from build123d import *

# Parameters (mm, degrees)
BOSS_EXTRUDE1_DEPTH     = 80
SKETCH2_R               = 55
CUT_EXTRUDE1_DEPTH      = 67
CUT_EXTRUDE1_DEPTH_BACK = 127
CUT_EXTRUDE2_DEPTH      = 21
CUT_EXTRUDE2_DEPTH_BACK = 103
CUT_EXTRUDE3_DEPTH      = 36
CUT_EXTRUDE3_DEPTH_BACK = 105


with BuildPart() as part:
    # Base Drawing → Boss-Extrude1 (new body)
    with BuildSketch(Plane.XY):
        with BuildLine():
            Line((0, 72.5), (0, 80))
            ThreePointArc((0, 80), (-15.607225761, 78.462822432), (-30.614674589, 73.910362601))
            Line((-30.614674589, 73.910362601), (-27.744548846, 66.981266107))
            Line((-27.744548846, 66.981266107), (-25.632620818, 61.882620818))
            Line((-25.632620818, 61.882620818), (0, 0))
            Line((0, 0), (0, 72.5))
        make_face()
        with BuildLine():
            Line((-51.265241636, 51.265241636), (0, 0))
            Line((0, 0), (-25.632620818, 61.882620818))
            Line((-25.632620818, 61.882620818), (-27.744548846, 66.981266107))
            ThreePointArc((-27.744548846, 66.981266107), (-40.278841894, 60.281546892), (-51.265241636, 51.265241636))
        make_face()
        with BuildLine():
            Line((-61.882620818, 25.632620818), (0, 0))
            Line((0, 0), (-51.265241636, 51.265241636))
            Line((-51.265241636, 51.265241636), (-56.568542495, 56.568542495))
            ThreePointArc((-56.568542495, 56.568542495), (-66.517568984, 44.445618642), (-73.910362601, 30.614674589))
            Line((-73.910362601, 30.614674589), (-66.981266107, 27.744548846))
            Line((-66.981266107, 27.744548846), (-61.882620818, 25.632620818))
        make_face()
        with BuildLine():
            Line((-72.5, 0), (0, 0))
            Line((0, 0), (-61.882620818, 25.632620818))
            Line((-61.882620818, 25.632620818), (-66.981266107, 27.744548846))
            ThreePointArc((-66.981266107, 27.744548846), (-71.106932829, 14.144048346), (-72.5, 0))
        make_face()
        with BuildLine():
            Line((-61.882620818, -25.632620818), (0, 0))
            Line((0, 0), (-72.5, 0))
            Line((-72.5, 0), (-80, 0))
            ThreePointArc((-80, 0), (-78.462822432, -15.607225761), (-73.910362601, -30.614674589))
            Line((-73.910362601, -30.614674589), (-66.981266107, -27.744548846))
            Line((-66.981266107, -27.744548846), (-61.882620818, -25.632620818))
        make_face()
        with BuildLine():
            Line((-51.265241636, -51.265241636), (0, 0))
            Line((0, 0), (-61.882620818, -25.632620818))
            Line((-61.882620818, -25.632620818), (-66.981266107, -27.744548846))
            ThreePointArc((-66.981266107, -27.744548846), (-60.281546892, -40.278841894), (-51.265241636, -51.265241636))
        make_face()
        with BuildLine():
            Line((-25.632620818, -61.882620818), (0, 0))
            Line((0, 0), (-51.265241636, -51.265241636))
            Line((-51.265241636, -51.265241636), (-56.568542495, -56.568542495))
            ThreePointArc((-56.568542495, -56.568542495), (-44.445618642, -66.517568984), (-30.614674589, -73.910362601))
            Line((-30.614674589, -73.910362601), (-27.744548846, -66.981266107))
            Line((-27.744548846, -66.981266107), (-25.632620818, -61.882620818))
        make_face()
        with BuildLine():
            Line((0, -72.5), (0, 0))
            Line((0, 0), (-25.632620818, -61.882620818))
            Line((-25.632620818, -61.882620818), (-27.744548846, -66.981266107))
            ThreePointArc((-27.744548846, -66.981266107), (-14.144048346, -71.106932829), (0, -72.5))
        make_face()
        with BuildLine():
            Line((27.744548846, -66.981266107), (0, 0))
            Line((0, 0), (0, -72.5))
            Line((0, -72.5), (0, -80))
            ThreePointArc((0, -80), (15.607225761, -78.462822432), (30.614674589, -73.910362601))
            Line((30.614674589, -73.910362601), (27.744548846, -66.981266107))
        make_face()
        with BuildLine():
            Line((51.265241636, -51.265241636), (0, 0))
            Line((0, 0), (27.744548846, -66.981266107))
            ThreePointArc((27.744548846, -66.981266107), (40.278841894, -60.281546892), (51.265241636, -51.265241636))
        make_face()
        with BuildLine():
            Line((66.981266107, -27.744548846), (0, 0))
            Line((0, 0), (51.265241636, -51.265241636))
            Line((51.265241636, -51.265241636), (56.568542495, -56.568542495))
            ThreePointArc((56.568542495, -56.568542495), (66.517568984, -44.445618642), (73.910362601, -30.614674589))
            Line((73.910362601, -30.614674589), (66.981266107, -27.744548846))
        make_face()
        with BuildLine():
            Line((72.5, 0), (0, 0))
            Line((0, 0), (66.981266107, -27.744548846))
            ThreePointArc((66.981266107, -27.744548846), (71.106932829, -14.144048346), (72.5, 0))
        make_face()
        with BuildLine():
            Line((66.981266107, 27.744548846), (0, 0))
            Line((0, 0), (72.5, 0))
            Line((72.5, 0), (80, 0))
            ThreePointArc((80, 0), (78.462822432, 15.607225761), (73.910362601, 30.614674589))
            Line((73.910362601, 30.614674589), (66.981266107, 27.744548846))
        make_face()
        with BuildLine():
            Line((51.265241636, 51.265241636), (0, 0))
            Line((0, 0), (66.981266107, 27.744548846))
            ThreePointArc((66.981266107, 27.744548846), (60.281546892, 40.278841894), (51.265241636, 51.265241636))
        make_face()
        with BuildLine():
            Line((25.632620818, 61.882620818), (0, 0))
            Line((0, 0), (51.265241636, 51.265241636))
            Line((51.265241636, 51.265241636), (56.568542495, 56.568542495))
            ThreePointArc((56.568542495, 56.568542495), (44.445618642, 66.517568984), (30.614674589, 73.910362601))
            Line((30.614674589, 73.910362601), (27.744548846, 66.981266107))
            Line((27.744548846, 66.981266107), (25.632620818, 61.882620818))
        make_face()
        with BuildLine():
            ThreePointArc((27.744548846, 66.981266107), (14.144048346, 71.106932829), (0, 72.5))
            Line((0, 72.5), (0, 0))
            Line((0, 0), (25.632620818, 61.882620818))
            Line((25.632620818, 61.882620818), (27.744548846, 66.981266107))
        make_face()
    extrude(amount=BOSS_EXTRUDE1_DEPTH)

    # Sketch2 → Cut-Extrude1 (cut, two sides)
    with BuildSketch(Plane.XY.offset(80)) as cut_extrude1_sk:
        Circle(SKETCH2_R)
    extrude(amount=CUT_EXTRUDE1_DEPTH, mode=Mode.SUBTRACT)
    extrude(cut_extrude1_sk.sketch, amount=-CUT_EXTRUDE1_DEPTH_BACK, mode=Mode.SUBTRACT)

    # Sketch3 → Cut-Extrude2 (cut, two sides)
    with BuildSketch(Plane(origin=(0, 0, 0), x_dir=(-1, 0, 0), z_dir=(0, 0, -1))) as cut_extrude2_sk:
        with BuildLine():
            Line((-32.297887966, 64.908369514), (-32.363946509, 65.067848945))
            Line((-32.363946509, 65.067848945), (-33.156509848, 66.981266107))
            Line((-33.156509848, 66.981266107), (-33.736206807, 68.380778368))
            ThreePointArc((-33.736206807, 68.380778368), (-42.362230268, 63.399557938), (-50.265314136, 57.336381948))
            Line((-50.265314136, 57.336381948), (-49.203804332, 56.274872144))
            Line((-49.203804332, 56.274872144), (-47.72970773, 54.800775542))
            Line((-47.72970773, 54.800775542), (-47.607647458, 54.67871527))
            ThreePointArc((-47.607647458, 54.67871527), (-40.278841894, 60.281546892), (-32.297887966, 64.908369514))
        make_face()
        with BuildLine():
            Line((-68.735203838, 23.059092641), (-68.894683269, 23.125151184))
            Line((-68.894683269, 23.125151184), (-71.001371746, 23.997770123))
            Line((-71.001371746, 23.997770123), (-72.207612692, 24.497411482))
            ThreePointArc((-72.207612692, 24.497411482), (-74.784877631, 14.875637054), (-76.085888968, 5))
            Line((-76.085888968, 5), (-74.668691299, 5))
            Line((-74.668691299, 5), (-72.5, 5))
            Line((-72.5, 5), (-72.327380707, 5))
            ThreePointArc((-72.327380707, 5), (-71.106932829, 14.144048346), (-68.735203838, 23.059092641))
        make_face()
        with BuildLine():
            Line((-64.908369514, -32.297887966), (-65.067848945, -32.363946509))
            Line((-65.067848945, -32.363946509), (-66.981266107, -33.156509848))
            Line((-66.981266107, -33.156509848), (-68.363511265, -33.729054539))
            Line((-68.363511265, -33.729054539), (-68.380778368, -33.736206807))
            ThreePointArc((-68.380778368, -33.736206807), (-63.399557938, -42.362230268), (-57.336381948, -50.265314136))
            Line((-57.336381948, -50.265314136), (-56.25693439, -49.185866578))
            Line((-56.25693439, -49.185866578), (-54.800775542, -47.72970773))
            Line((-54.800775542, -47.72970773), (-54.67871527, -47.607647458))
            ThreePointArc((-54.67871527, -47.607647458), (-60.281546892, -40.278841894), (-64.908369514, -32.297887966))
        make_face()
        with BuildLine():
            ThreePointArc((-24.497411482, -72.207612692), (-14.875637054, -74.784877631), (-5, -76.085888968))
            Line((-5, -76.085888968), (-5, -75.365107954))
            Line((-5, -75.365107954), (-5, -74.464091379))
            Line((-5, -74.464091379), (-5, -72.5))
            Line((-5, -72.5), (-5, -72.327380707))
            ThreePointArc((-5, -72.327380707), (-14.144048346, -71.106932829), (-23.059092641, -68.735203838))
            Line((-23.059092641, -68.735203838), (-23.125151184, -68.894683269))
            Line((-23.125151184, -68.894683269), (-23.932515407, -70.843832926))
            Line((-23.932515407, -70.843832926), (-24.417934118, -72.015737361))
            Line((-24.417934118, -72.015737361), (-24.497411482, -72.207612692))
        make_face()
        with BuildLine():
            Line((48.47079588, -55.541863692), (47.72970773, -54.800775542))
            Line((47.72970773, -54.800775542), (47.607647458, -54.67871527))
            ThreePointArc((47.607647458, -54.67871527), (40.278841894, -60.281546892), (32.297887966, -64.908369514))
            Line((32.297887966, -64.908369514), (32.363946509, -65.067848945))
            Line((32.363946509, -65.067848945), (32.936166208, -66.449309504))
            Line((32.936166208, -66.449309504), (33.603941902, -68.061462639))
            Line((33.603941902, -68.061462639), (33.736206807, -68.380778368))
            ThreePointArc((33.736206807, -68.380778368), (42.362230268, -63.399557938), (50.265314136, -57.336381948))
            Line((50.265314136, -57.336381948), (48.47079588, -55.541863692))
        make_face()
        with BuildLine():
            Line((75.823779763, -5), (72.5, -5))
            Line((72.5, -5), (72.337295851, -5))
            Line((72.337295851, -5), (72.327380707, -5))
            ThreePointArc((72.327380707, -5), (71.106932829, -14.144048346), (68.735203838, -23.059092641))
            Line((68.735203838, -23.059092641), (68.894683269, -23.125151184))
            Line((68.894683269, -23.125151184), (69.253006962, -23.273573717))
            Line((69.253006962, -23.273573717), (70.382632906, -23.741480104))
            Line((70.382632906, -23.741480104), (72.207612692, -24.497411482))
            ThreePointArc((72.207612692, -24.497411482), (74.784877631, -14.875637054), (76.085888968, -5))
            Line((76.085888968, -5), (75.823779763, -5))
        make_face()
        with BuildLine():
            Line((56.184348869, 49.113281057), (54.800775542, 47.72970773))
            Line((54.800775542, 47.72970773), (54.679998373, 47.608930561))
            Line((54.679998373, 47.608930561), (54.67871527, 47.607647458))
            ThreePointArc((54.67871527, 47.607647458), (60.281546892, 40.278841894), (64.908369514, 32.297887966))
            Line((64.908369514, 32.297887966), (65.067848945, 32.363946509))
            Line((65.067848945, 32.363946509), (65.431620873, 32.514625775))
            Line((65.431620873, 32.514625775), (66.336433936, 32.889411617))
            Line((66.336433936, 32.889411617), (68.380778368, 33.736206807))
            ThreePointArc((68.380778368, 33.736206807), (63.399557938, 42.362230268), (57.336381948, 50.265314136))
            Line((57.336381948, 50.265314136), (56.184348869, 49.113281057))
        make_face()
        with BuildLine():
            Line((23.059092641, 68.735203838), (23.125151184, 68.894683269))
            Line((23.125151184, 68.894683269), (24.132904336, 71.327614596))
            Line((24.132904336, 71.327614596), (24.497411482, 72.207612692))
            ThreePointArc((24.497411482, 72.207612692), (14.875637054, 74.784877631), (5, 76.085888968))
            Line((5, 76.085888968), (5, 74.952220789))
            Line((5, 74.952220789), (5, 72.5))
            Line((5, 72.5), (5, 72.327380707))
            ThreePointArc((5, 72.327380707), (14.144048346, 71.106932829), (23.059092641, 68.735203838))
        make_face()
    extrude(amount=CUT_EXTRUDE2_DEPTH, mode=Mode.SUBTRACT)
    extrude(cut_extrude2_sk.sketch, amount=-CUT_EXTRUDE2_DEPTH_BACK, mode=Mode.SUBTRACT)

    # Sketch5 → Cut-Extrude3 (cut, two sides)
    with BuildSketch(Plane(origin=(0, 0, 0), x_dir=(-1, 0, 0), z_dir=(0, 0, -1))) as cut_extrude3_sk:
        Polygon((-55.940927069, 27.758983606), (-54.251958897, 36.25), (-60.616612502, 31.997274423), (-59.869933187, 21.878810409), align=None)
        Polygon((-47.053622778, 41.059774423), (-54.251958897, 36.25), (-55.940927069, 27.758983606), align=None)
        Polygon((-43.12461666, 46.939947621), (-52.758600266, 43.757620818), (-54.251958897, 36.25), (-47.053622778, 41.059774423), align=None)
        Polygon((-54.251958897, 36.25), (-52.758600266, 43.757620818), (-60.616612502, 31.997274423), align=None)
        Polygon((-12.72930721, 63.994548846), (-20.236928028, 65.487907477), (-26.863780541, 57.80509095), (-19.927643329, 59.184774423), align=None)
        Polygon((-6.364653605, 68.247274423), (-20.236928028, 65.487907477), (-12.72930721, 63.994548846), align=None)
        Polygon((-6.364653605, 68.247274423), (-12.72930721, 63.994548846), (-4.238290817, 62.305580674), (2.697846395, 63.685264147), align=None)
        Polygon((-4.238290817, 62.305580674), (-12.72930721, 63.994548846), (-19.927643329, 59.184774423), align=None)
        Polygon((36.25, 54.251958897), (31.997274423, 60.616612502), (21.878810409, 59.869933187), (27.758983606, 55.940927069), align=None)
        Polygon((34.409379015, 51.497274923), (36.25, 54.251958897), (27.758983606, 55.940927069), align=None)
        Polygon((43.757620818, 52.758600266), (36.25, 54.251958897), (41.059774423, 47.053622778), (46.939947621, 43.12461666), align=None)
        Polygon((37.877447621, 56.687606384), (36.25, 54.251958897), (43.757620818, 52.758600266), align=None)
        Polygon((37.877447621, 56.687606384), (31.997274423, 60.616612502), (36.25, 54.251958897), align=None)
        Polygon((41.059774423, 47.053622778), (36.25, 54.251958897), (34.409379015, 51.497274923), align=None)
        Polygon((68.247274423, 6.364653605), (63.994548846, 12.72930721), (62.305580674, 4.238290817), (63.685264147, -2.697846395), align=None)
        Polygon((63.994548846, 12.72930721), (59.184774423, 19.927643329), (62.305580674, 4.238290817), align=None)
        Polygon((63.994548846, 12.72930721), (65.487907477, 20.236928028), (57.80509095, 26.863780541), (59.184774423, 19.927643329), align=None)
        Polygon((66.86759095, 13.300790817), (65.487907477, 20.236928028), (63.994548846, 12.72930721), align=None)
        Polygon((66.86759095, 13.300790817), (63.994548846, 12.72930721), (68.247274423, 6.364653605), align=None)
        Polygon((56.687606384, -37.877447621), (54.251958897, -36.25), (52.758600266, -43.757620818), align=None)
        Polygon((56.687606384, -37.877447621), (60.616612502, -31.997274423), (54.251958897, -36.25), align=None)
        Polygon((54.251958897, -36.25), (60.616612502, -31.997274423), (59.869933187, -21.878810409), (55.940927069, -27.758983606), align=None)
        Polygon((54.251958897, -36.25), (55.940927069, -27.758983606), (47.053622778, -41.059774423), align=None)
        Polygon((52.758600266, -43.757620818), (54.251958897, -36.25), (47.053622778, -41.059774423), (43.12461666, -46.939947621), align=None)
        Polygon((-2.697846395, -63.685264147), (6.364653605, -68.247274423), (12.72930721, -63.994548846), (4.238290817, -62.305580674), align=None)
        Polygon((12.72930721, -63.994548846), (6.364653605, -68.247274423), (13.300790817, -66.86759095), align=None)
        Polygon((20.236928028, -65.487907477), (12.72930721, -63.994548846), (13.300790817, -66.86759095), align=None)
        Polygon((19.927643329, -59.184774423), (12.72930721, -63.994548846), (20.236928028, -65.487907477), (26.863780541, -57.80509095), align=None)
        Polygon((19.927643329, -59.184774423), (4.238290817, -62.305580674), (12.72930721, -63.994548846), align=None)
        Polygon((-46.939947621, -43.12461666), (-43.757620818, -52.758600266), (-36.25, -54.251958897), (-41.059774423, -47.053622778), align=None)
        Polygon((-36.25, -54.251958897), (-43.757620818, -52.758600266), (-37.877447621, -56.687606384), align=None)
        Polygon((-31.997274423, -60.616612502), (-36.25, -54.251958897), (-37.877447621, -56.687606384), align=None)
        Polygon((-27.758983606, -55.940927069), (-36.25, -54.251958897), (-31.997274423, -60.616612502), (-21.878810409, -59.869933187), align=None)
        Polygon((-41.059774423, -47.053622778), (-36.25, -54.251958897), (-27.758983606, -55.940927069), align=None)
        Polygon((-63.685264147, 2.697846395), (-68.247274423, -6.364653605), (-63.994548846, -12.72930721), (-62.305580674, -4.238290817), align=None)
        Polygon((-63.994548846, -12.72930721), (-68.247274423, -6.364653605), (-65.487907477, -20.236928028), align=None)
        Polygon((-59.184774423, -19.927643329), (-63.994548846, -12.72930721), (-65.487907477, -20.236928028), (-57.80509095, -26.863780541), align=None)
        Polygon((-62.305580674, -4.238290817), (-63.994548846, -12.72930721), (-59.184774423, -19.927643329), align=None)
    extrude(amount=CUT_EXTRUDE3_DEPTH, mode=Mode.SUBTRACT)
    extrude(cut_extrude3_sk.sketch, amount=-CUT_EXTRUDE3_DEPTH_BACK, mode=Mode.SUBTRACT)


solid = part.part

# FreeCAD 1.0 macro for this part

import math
import FreeCAD as App
import Part
import Sketcher
from FreeCAD import Vector
Q = App.Units.Quantity


def add_polygon(sketch, points):
    """Adds a closed chain of lines whose ends are joined by coincident constraints."""
    first, n = sketch.GeometryCount, len(points)
    for a, b in zip(points, points[1:] + points[:1]):
        sketch.addGeometry(Part.LineSegment(App.Vector(*a, 0), App.Vector(*b, 0)), False)
    for i in range(n):
        sketch.addConstraint(Sketcher.Constraint("Coincident", first + i, 2, first + (i + 1) % n, 1))

doc = App.newDocument("Part")
body = doc.addObject("PartDesign::Body", "Body")

# Sketch on XY plane
sketch1 = body.newObject("Sketcher::SketchObject", "Sketch")
sketch1.AttachmentSupport = (doc.getObject("XY_Plane"), [""])
sketch1.MapMode = "FlatFace"
sketch1.addGeometry([
    Part.ArcOfCircle(Part.Circle(Vector(0, 0, 0), Vector(0, 0, 1), 80), math.radians(90), math.radians(112)),  # 0
    Part.LineSegment(Vector(-31, 74, 0), Vector(-28, 67, 0)),  # 1
    Part.ArcOfCircle(Part.Circle(Vector(0, 0, 0), Vector(0, 0, 1), 72), math.radians(112), math.radians(135)),  # 2
    Part.LineSegment(Vector(-51, 51, 0), Vector(-57, 57, 0)),  # 3
    Part.ArcOfCircle(Part.Circle(Vector(0, 0, 0), Vector(0, 0, 1), 80), math.radians(135), math.radians(158)),  # 4
    Part.LineSegment(Vector(-74, 31, 0), Vector(-67, 28, 0)),  # 5
    Part.ArcOfCircle(Part.Circle(Vector(0, 0, 0), Vector(0, 0, 1), 73), math.radians(158), math.radians(180)),  # 6
    Part.LineSegment(Vector(-72, 0, 0), Vector(-80, 0, 0)),  # 7
    Part.ArcOfCircle(Part.Circle(Vector(0, 0, 0), Vector(0, 0, 1), 80), math.radians(-180), math.radians(-158)),  # 8
    Part.LineSegment(Vector(-74, -31, 0), Vector(-67, -28, 0)),  # 9
    Part.ArcOfCircle(Part.Circle(Vector(0, 0, 0), Vector(0, 0, 1), 72), math.radians(-158), math.radians(-135)),  # 10
    Part.LineSegment(Vector(-51, -51, 0), Vector(-57, -57, 0)),  # 11
    Part.ArcOfCircle(Part.Circle(Vector(0, 0, 0), Vector(0, 0, 1), 80), math.radians(-135), math.radians(-112)),  # 12
    Part.LineSegment(Vector(-31, -74, 0), Vector(-28, -67, 0)),  # 13
    Part.ArcOfCircle(Part.Circle(Vector(0, 0, 0), Vector(0, 0, 1), 73), math.radians(-112), math.radians(-90)),  # 14
    Part.LineSegment(Vector(0, -72, 0), Vector(0, -80, 0)),  # 15
    Part.ArcOfCircle(Part.Circle(Vector(0, 0, 0), Vector(0, 0, 1), 80), math.radians(-90), math.radians(-68)),  # 16
    Part.LineSegment(Vector(31, -74, 0), Vector(28, -67, 0)),  # 17
    Part.ArcOfCircle(Part.Circle(Vector(0, 0, 0), Vector(0, 0, 1), 72), math.radians(-68), math.radians(-45)),  # 18
    Part.LineSegment(Vector(51, -51, 0), Vector(57, -57, 0)),  # 19
    Part.ArcOfCircle(Part.Circle(Vector(0, 0, 0), Vector(0, 0, 1), 80), math.radians(-45), math.radians(-22)),  # 20
    Part.LineSegment(Vector(74, -31, 0), Vector(67, -28, 0)),  # 21
    Part.ArcOfCircle(Part.Circle(Vector(0, 0, 0), Vector(0, 0, 1), 73), math.radians(-22), math.radians(0)),  # 22
    Part.LineSegment(Vector(72, 0, 0), Vector(80, 0, 0)),  # 23
    Part.ArcOfCircle(Part.Circle(Vector(0, 0, 0), Vector(0, 0, 1), 80), math.radians(0), math.radians(22)),  # 24
    Part.LineSegment(Vector(74, 31, 0), Vector(67, 28, 0)),  # 25
    Part.ArcOfCircle(Part.Circle(Vector(0, 0, 0), Vector(0, 0, 1), 72), math.radians(22), math.radians(45)),  # 26
    Part.LineSegment(Vector(51, 51, 0), Vector(57, 57, 0)),  # 27
    Part.ArcOfCircle(Part.Circle(Vector(0, 0, 0), Vector(0, 0, 1), 80), math.radians(45), math.radians(68)),  # 28
    Part.LineSegment(Vector(31, 74, 0), Vector(28, 67, 0)),  # 29
    Part.ArcOfCircle(Part.Circle(Vector(0, 0, 0), Vector(0, 0, 1), 73), math.radians(68), math.radians(90)),  # 30
    Part.LineSegment(Vector(0, 72, 0), Vector(0, 80, 0)),  # 31
], False)
sketch1.addConstraint([
    Sketcher.Constraint("Coincident", 0, 2, 1, 1),
    Sketcher.Constraint("Coincident", 1, 2, 2, 1),
    Sketcher.Constraint("Coincident", 2, 2, 3, 1),
    Sketcher.Constraint("Coincident", 3, 2, 4, 1),
    Sketcher.Constraint("Coincident", 4, 2, 5, 1),
    Sketcher.Constraint("Coincident", 5, 2, 6, 1),
    Sketcher.Constraint("Coincident", 6, 2, 7, 1),
    Sketcher.Constraint("Coincident", 7, 2, 8, 1),
    Sketcher.Constraint("Coincident", 8, 2, 9, 1),
    Sketcher.Constraint("Coincident", 9, 2, 10, 1),
    Sketcher.Constraint("Coincident", 10, 2, 11, 1),
    Sketcher.Constraint("Coincident", 11, 2, 12, 1),
    Sketcher.Constraint("Coincident", 12, 2, 13, 1),
    Sketcher.Constraint("Coincident", 13, 2, 14, 1),
    Sketcher.Constraint("Coincident", 14, 2, 15, 1),
    Sketcher.Constraint("Coincident", 15, 2, 16, 1),
    Sketcher.Constraint("Coincident", 16, 2, 17, 1),
    Sketcher.Constraint("Coincident", 17, 2, 18, 1),
    Sketcher.Constraint("Coincident", 18, 2, 19, 1),
    Sketcher.Constraint("Coincident", 19, 2, 20, 1),
    Sketcher.Constraint("Coincident", 20, 2, 21, 1),
    Sketcher.Constraint("Coincident", 21, 2, 22, 1),
    Sketcher.Constraint("Coincident", 22, 2, 23, 1),
    Sketcher.Constraint("Coincident", 23, 2, 24, 1),
    Sketcher.Constraint("Coincident", 24, 2, 25, 1),
    Sketcher.Constraint("Coincident", 25, 2, 26, 1),
    Sketcher.Constraint("Coincident", 26, 2, 27, 1),
    Sketcher.Constraint("Coincident", 27, 2, 28, 1),
    Sketcher.Constraint("Coincident", 28, 2, 29, 1),
    Sketcher.Constraint("Coincident", 29, 2, 30, 1),
    Sketcher.Constraint("Coincident", 30, 2, 31, 1),
    Sketcher.Constraint("Coincident", 31, 2, 0, 1),
    Sketcher.Constraint("Horizontal", 7),
    Sketcher.Constraint("Vertical", 15),
    Sketcher.Constraint("Horizontal", 23),
    Sketcher.Constraint("Vertical", 31),
    Sketcher.Constraint("Coincident", 0, 3, -1, 1),
    Sketcher.Constraint("Coincident", 2, 3, -1, 1),
    Sketcher.Constraint("Coincident", 4, 3, -1, 1),
    Sketcher.Constraint("Coincident", 6, 3, -1, 1),
    Sketcher.Constraint("Coincident", 8, 3, -1, 1),
    Sketcher.Constraint("Coincident", 10, 3, -1, 1),
    Sketcher.Constraint("Coincident", 12, 3, -1, 1),
    Sketcher.Constraint("Coincident", 14, 3, -1, 1),
    Sketcher.Constraint("Coincident", 16, 3, -1, 1),
    Sketcher.Constraint("Coincident", 18, 3, -1, 1),
    Sketcher.Constraint("Coincident", 20, 3, -1, 1),
    Sketcher.Constraint("Coincident", 22, 3, -1, 1),
    Sketcher.Constraint("Coincident", 24, 3, -1, 1),
    Sketcher.Constraint("Coincident", 26, 3, -1, 1),
    Sketcher.Constraint("Coincident", 28, 3, -1, 1),
    Sketcher.Constraint("Coincident", 30, 3, -1, 1),
    Sketcher.Constraint("Equal", 0, 4),
    Sketcher.Constraint("Equal", 2, 6),
    Sketcher.Constraint("Equal", 4, 8),
    Sketcher.Constraint("Equal", 6, 10),
    Sketcher.Constraint("Equal", 8, 12),
    Sketcher.Constraint("Equal", 10, 14),
    Sketcher.Constraint("Equal", 12, 16),
    Sketcher.Constraint("Equal", 14, 18),
    Sketcher.Constraint("Equal", 16, 20),
    Sketcher.Constraint("Equal", 18, 22),
    Sketcher.Constraint("Equal", 20, 24),
    Sketcher.Constraint("Equal", 22, 26),
    Sketcher.Constraint("Equal", 24, 28),
    Sketcher.Constraint("Equal", 26, 30),
    Sketcher.Constraint("PointOnObject", 6, 2, -1),
    Sketcher.Constraint("PointOnObject", 14, 2, -2),
    Sketcher.Constraint("PointOnObject", 22, 2, -1),
    Sketcher.Constraint("PointOnObject", 30, 2, -2),
    Sketcher.Constraint("Perpendicular", 1, 9),
    Sketcher.Constraint("Perpendicular", 3, 11),
    Sketcher.Constraint("Perpendicular", 5, 13),
    Sketcher.Constraint("Perpendicular", 9, 17),
    Sketcher.Constraint("Perpendicular", 11, 19),
    Sketcher.Constraint("Perpendicular", 13, 21),
    Sketcher.Constraint("Perpendicular", 17, 25),
    Sketcher.Constraint("Perpendicular", 19, 27),
    Sketcher.Constraint("Perpendicular", 21, 29),
    Sketcher.Constraint("Horizontal", 12, 2, 16, 2),
    Sketcher.Constraint("Horizontal", 13, 2, 17, 2),
    Sketcher.Constraint("Horizontal", 10, 2, 18, 2),
    Sketcher.Constraint("Horizontal", 11, 2, 19, 2),
    Sketcher.Constraint("Horizontal", 8, 2, 20, 2),
    Sketcher.Constraint("Horizontal", 4, 2, 24, 2),
    Sketcher.Constraint("Horizontal", 2, 2, 26, 2),
    Sketcher.Constraint("Horizontal", 0, 2, 28, 2),
    Sketcher.Constraint("Vertical", 4, 2, 8, 2),
    Sketcher.Constraint("Vertical", 2, 2, 10, 2),
    Sketcher.Constraint("Vertical", 0, 2, 12, 2),
    Sketcher.Constraint("Radius", 0, Q("80 mm")),
    Sketcher.Constraint("Radius", 2, Q("72.5 mm")),
    Sketcher.Constraint("Angle", 1, Q("-67.5 deg")),
    Sketcher.Constraint("DistanceX", 1, 2, -1, 1, Q("27.744549 mm")),
    Sketcher.Constraint("DistanceX", 2, 2, -1, 1, Q("51.265242 mm")),
    Sketcher.Constraint("DistanceY", -1, 1, 5, 2, Q("27.744549 mm")),
])
pad1 = body.newObject("PartDesign::Pad", "Pad")
pad1.Profile = sketch1
pad1.Length = 80

# Sketch on XY plane
sketch2 = body.newObject("Sketcher::SketchObject", "Sketch001")
sketch2.AttachmentSupport = (doc.getObject("XY_Plane"), [""])
sketch2.MapMode = "FlatFace"
sketch2.AttachmentOffset = App.Placement(Vector(0, 0, 80), App.Rotation())
sketch2.addGeometry(Part.Circle(Vector(0, 0, 0), Vector(0, 0, 1), 55), False)
sketch2.addConstraint([
    Sketcher.Constraint("Coincident", 0, 3, -1, 1),
    Sketcher.Constraint("Diameter", 0, Q("110 mm")),
])
pocket1 = body.newObject("PartDesign::Pocket", "Pocket")
pocket1.Profile = sketch2
pocket1.Type = "ThroughAll"
pocket1.Midplane = True

# Sketch on XY plane
sketch3 = body.newObject("Sketcher::SketchObject", "Sketch002")
sketch3.AttachmentSupport = (doc.getObject("XY_Plane"), [""])
sketch3.MapMode = "FlatFace"
sketch3.addGeometry([
    Part.LineSegment(Vector(32.298, 64.908, 0), Vector(32.364, 65.068, 0)),  # 0
    Part.LineSegment(Vector(32.364, 65.068, 0), Vector(33.157, 66.981, 0)),  # 1
    Part.LineSegment(Vector(33.157, 66.981, 0), Vector(33.736, 68.381, 0)),  # 2
    Part.ArcOfCircle(Part.Circle(Vector(0, 0, 0), Vector(0, 0, 1), 76.25), math.radians(48.76), math.radians(63.74)),  # 3
    Part.LineSegment(Vector(50.265, 57.336, 0), Vector(47.608, 54.679, 0)),  # 4
    Part.ArcOfCircle(Part.Circle(Vector(0, 0, 0), Vector(0, 0, 1), 72.5), math.radians(48.95), math.radians(63.55)),  # 5
    Part.LineSegment(Vector(68.735, 23.059, 0), Vector(68.895, 23.125, 0)),  # 6
    Part.LineSegment(Vector(68.895, 23.125, 0), Vector(71.001, 23.998, 0)),  # 7
    Part.LineSegment(Vector(71.001, 23.998, 0), Vector(72.208, 24.497, 0)),  # 8
    Part.ArcOfCircle(Part.Circle(Vector(0, 0, 0), Vector(0, 0, 1), 76.25), math.radians(3.76), math.radians(18.74)),  # 9
    Part.LineSegment(Vector(76.086, 5, 0), Vector(72.327, 5, 0)),  # 10
    Part.ArcOfCircle(Part.Circle(Vector(0, 0, 0), Vector(0, 0, 1), 72.5), math.radians(3.95), math.radians(18.55)),  # 11
    Part.LineSegment(Vector(64.908, -32.298, 0), Vector(65.068, -32.364, 0)),  # 12
    Part.LineSegment(Vector(65.068, -32.364, 0), Vector(66.981, -33.157, 0)),  # 13
    Part.LineSegment(Vector(66.981, -33.157, 0), Vector(68.364, -33.729, 0)),  # 14
    Part.LineSegment(Vector(68.364, -33.729, 0), Vector(68.381, -33.736, 0)),  # 15
    Part.ArcOfCircle(Part.Circle(Vector(0, 0, 0), Vector(0, 0, 1), 76.25), math.radians(-41.24), math.radians(-26.26)),  # 16
    Part.LineSegment(Vector(57.336, -50.265, 0), Vector(54.679, -47.608, 0)),  # 17
    Part.ArcOfCircle(Part.Circle(Vector(0, 0, 0), Vector(0, 0, 1), 72.5), math.radians(-41.05), math.radians(-26.45)),  # 18
    Part.ArcOfCircle(Part.Circle(Vector(0, 0, 0), Vector(0, 0, 1), 76.25), math.radians(-86.24), math.radians(-71.26)),  # 19
    Part.LineSegment(Vector(5, -76.086, 0), Vector(5, -72.327, 0)),  # 20
    Part.ArcOfCircle(Part.Circle(Vector(0, 0, 0), Vector(0, 0, 1), 72.5), math.radians(-86.05), math.radians(-71.45)),  # 21
    Part.LineSegment(Vector(23.059, -68.735, 0), Vector(23.125, -68.895, 0)),  # 22
    Part.LineSegment(Vector(23.125, -68.895, 0), Vector(23.933, -70.844, 0)),  # 23
    Part.LineSegment(Vector(23.933, -70.844, 0), Vector(24.418, -72.016, 0)),  # 24
    Part.LineSegment(Vector(24.418, -72.016, 0), Vector(24.497, -72.208, 0)),  # 25
    Part.ArcOfCircle(Part.Circle(Vector(0, 0, 0), Vector(0, 0, 1), 72.5), math.radians(-131.05), math.radians(-116.45)),  # 26
    Part.LineSegment(Vector(-32.298, -64.908, 0), Vector(-32.364, -65.068, 0)),  # 27
    Part.LineSegment(Vector(-32.364, -65.068, 0), Vector(-32.936, -66.449, 0)),  # 28
    Part.LineSegment(Vector(-32.936, -66.449, 0), Vector(-33.604, -68.061, 0)),  # 29
    Part.LineSegment(Vector(-33.604, -68.061, 0), Vector(-33.736, -68.381, 0)),  # 30
    Part.ArcOfCircle(Part.Circle(Vector(0, 0, 0), Vector(0, 0, 1), 76.25), math.radians(-131.24), math.radians(-116.26)),  # 31
    Part.LineSegment(Vector(-50.265, -57.336, 0), Vector(-47.608, -54.679, 0)),  # 32
    Part.ArcOfCircle(Part.Circle(Vector(0, 0, 0), Vector(0, 0, 1), 72.5), math.radians(-176.05), math.radians(-161.45)),  # 33
    Part.LineSegment(Vector(-68.735, -23.059, 0), Vector(-68.895, -23.125, 0)),  # 34
    Part.LineSegment(Vector(-68.895, -23.125, 0), Vector(-69.253, -23.274, 0)),  # 35
    Part.LineSegment(Vector(-69.253, -23.274, 0), Vector(-70.383, -23.741, 0)),  # 36
    Part.LineSegment(Vector(-70.383, -23.741, 0), Vector(-72.208, -24.497, 0)),  # 37
    Part.ArcOfCircle(Part.Circle(Vector(0, 0, 0), Vector(0, 0, 1), 76.25), math.radians(-176.24), math.radians(-161.26)),  # 38
    Part.LineSegment(Vector(-76.086, -5, 0), Vector(-72.327, -5, 0)),  # 39
    Part.ArcOfCircle(Part.Circle(Vector(0, 0, 0), Vector(0, 0, 1), 72.5), math.radians(138.95), math.radians(153.55)),  # 40
    Part.LineSegment(Vector(-64.908, 32.298, 0), Vector(-65.068, 32.364, 0)),  # 41
    Part.LineSegment(Vector(-65.068, 32.364, 0), Vector(-65.432, 32.515, 0)),  # 42
    Part.LineSegment(Vector(-65.432, 32.515, 0), Vector(-66.336, 32.889, 0)),  # 43
    Part.LineSegment(Vector(-66.336, 32.889, 0), Vector(-68.381, 33.736, 0)),  # 44
    Part.ArcOfCircle(Part.Circle(Vector(0, 0, 0), Vector(0, 0, 1), 76.25), math.radians(138.76), math.radians(153.74)),  # 45
    Part.LineSegment(Vector(-57.336, 50.265, 0), Vector(-54.679, 47.608, 0)),  # 46
    Part.LineSegment(Vector(-23.059, 68.735, 0), Vector(-23.125, 68.895, 0)),  # 47
    Part.LineSegment(Vector(-23.125, 68.895, 0), Vector(-24.133, 71.328, 0)),  # 48
    Part.LineSegment(Vector(-24.133, 71.328, 0), Vector(-24.497, 72.208, 0)),  # 49
    Part.ArcOfCircle(Part.Circle(Vector(0, 0, 0), Vector(0, 0, 1), 76.25), math.radians(93.76), math.radians(108.74)),  # 50
    Part.LineSegment(Vector(-5, 76.086, 0), Vector(-5, 72.327, 0)),  # 51
    Part.ArcOfCircle(Part.Circle(Vector(0, 0, 0), Vector(0, 0, 1), 72.5), math.radians(93.95), math.radians(108.55)),  # 52
], False)
sketch3.addConstraint([
    Sketcher.Constraint("Coincident", 0, 2, 1, 1),
    Sketcher.Constraint("Coincident", 1, 2, 2, 1),
    Sketcher.Constraint("Coincident", 2, 2, 3, 2),
    Sketcher.Constraint("Coincident", 3, 1, 4, 1),
    Sketcher.Constraint("Coincident", 4, 2, 5, 1),
    Sketcher.Constraint("Coincident", 5, 2, 0, 1),
    Sketcher.Constraint("Coincident", 6, 2, 7, 1),
    Sketcher.Constraint("Coincident", 7, 2, 8, 1),
    Sketcher.Constraint("Coincident", 8, 2, 9, 2),
    Sketcher.Constraint("Coincident", 9, 1, 10, 1),
    Sketcher.Constraint("Coincident", 10, 2, 11, 1),
    Sketcher.Constraint("Coincident", 11, 2, 6, 1),
    Sketcher.Constraint("Coincident", 12, 2, 13, 1),
    Sketcher.Constraint("Coincident", 13, 2, 14, 1),
    Sketcher.Constraint("Coincident", 14, 2, 15, 1),
    Sketcher.Constraint("Coincident", 15, 2, 16, 2),
    Sketcher.Constraint("Coincident", 16, 1, 17, 1),
    Sketcher.Constraint("Coincident", 17, 2, 18, 1),
    Sketcher.Constraint("Coincident", 18, 2, 12, 1),
    Sketcher.Constraint("Coincident", 19, 1, 20, 1),
    Sketcher.Constraint("Coincident", 20, 2, 21, 1),
    Sketcher.Constraint("Coincident", 21, 2, 22, 1),
    Sketcher.Constraint("Coincident", 22, 2, 23, 1),
    Sketcher.Constraint("Coincident", 23, 2, 24, 1),
    Sketcher.Constraint("Coincident", 24, 2, 25, 1),
    Sketcher.Constraint("Coincident", 25, 2, 19, 2),
    Sketcher.Constraint("Coincident", 26, 2, 27, 1),
    Sketcher.Constraint("Coincident", 27, 2, 28, 1),
    Sketcher.Constraint("Coincident", 28, 2, 29, 1),
    Sketcher.Constraint("Coincident", 29, 2, 30, 1),
    Sketcher.Constraint("Coincident", 30, 2, 31, 2),
    Sketcher.Constraint("Coincident", 31, 1, 32, 1),
    Sketcher.Constraint("Coincident", 32, 2, 26, 1),
    Sketcher.Constraint("Coincident", 33, 2, 34, 1),
    Sketcher.Constraint("Coincident", 34, 2, 35, 1),
    Sketcher.Constraint("Coincident", 35, 2, 36, 1),
    Sketcher.Constraint("Coincident", 36, 2, 37, 1),
    Sketcher.Constraint("Coincident", 37, 2, 38, 2),
    Sketcher.Constraint("Coincident", 38, 1, 39, 1),
    Sketcher.Constraint("Coincident", 39, 2, 33, 1),
    Sketcher.Constraint("Coincident", 40, 2, 41, 1),
    Sketcher.Constraint("Coincident", 41, 2, 42, 1),
    Sketcher.Constraint("Coincident", 42, 2, 43, 1),
    Sketcher.Constraint("Coincident", 43, 2, 44, 1),
    Sketcher.Constraint("Coincident", 44, 2, 45, 2),
    Sketcher.Constraint("Coincident", 45, 1, 46, 1),
    Sketcher.Constraint("Coincident", 46, 2, 40, 1),
    Sketcher.Constraint("Coincident", 47, 2, 48, 1),
    Sketcher.Constraint("Coincident", 48, 2, 49, 1),
    Sketcher.Constraint("Coincident", 49, 2, 50, 2),
    Sketcher.Constraint("Coincident", 50, 1, 51, 1),
    Sketcher.Constraint("Coincident", 51, 2, 52, 1),
    Sketcher.Constraint("Coincident", 52, 2, 47, 1),
    Sketcher.Constraint("Horizontal", 10),
    Sketcher.Constraint("Vertical", 20),
    Sketcher.Constraint("Horizontal", 39),
    Sketcher.Constraint("Vertical", 51),
    Sketcher.Constraint("Coincident", 3, 3, -1, 1),
    Sketcher.Constraint("Coincident", 5, 3, -1, 1),
    Sketcher.Constraint("Coincident", 9, 3, -1, 1),
    Sketcher.Constraint("Coincident", 11, 3, -1, 1),
    Sketcher.Constraint("Coincident", 16, 3, -1, 1),
    Sketcher.Constraint("Coincident", 18, 3, -1, 1),
    Sketcher.Constraint("Coincident", 19, 3, -1, 1),
    Sketcher.Constraint("Coincident", 21, 3, -1, 1),
    Sketcher.Constraint("Coincident", 26, 3, -1, 1),
    Sketcher.Constraint("Coincident", 31, 3, -1, 1),
    Sketcher.Constraint("Coincident", 33, 3, -1, 1),
    Sketcher.Constraint("Coincident", 38, 3, -1, 1),
    Sketcher.Constraint("Coincident", 40, 3, -1, 1),
    Sketcher.Constraint("Coincident", 45, 3, -1, 1),
    Sketcher.Constraint("Coincident", 50, 3, -1, 1),
    Sketcher.Constraint("Coincident", 52, 3, -1, 1),
    Sketcher.Constraint("Equal", 3, 9),
    Sketcher.Constraint("Equal", 5, 11),
    Sketcher.Constraint("Equal", 9, 16),
    Sketcher.Constraint("Equal", 11, 18),
    Sketcher.Constraint("Equal", 16, 19),
    Sketcher.Constraint("Equal", 18, 21),
    Sketcher.Constraint("Equal", 21, 26),
    Sketcher.Constraint("Equal", 19, 31),
    Sketcher.Constraint("Equal", 26, 33),
    Sketcher.Constraint("Equal", 31, 38),
    Sketcher.Constraint("Equal", 33, 40),
    Sketcher.Constraint("Equal", 38, 45),
    Sketcher.Constraint("Equal", 45, 50),
    Sketcher.Constraint("Equal", 40, 52),
    Sketcher.Constraint("Symmetric", 0, 2, 27, 2, -1, 1),
    Sketcher.Constraint("Symmetric", 6, 2, 34, 2, -1, 1),
    Sketcher.Constraint("Symmetric", 12, 2, 41, 2, -1, 1),
    Sketcher.Constraint("Symmetric", 22, 2, 47, 2, -1, 1),
    Sketcher.Constraint("Parallel", 0, 1),
    Sketcher.Constraint("Parallel", 1, 2),
    Sketcher.Constraint("Parallel", 6, 7),
    Sketcher.Constraint("Parallel", 7, 8),
    Sketcher.Constraint("Perpendicular", 2, 12),
    Sketcher.Constraint("Parallel", 12, 13),
    Sketcher.Constraint("Parallel", 13, 14),
    Sketcher.Constraint("Parallel", 14, 15),
    Sketcher.Constraint("Perpendicular", 4, 17),
    Sketcher.Constraint("Perpendicular", 8, 22),
    Sketcher.Constraint("Parallel", 22, 23),
    Sketcher.Constraint("Parallel", 23, 24),
    Sketcher.Constraint("Parallel", 24, 25),
    Sketcher.Constraint("Perpendicular", 15, 27),
    Sketcher.Constraint("Parallel", 27, 28),
    Sketcher.Constraint("Parallel", 28, 29),
    Sketcher.Constraint("Parallel", 29, 30),
    Sketcher.Constraint("Perpendicular", 17, 32),
    Sketcher.Constraint("Perpendicular", 25, 34),
    Sketcher.Constraint("Parallel", 34, 35),
    Sketcher.Constraint("Parallel", 35, 36),
    Sketcher.Constraint("Parallel", 36, 37),
    Sketcher.Constraint("Perpendicular", 30, 41),
    Sketcher.Constraint("Parallel", 41, 42),
    Sketcher.Constraint("Parallel", 42, 43),
    Sketcher.Constraint("Parallel", 43, 44),
    Sketcher.Constraint("Perpendicular", 32, 46),
    Sketcher.Constraint("Perpendicular", 37, 47),
    Sketcher.Constraint("Parallel", 47, 48),
    Sketcher.Constraint("Parallel", 48, 49),
    Sketcher.Constraint("Equal", 0, 6),
    Sketcher.Constraint("Equal", 6, 12),
    Sketcher.Constraint("Equal", 1, 13),
    Sketcher.Constraint("Equal", 12, 22),
    Sketcher.Constraint("Radius", 5, Q("72.5 mm")),
    Sketcher.Constraint("Angle", 4, Q("-135 deg")),
    Sketcher.Constraint("Radius", 3, Q("76.25 mm")),
    Sketcher.Constraint("DistanceY", -1, 1, 9, 1, Q("5 mm")),
    Sketcher.Constraint("DistanceX", -1, 1, 19, 1, Q("5 mm")),
    Sketcher.Constraint("DistanceY", 38, 1, -1, 1, Q("5 mm")),
    Sketcher.Constraint("DistanceX", 50, 1, -1, 1, Q("5 mm")),
    Sketcher.Constraint("Angle", 0, Q("67.5 deg")),
    Sketcher.Constraint("Angle", 6, Q("22.5 deg")),
    Sketcher.Constraint("Distance", 36, Q("1.222698 mm")),
    Sketcher.Constraint("Distance", 0, Q("0.172619 mm")),
    Sketcher.Constraint("Distance", 2, Q("1.514821 mm")),
    Sketcher.Constraint("Distance", 14, Q("1.496131 mm")),
    Sketcher.Constraint("Distance", 24, Q("1.26846 mm")),
    Sketcher.Constraint("Distance", 29, Q("1.744982 mm")),
    Sketcher.Constraint("DistanceY", -1, 1, 0, 2, Q("65.067849 mm")),
    Sketcher.Constraint("DistanceY", -1, 1, 3, 1, Q("57.336382 mm")),
    Sketcher.Constraint("DistanceY", -1, 1, 6, 2, Q("23.125151 mm")),
    Sketcher.Constraint("DistanceX", -1, 1, 7, 2, Q("71.001372 mm")),
    Sketcher.Constraint("DistanceX", -1, 1, 12, 2, Q("65.067849 mm")),
    Sketcher.Constraint("DistanceX", -1, 1, 16, 1, Q("57.336382 mm")),
    Sketcher.Constraint("DistanceX", -1, 1, 22, 2, Q("23.125151 mm")),
    Sketcher.Constraint("DistanceY", 28, 2, -1, 1, Q("66.44931 mm")),
    Sketcher.Constraint("DistanceY", 31, 1, -1, 1, Q("57.336382 mm")),
    Sketcher.Constraint("DistanceY", 36, 2, -1, 1, Q("23.74148 mm")),
    Sketcher.Constraint("DistanceX", 42, 2, -1, 1, Q("65.431621 mm")),
    Sketcher.Constraint("DistanceY", -1, 1, 43, 2, Q("32.889412 mm")),
    Sketcher.Constraint("DistanceX", 45, 1, -1, 1, Q("57.336382 mm")),
    Sketcher.Constraint("Distance", 23, Q("2.109744 mm")),
    Sketcher.Constraint("Distance", 48, Q("2.633386 mm")),
])
pocket2 = body.newObject("PartDesign::Pocket", "Pocket001")
pocket2.Profile = sketch3
pocket2.Type = "ThroughAll"
pocket2.Midplane = True

# Sketch on XY plane
sketch4 = body.newObject("Sketcher::SketchObject", "Sketch003")
sketch4.AttachmentSupport = (doc.getObject("XY_Plane"), [""])
sketch4.MapMode = "FlatFace"
add_polygon(sketch4, [(61, 32), (60, 22), (56, 28), (47, 41), (43, 47), (53, 44)])  # lines 0-5
add_polygon(sketch4, [(20, 65), (27, 58), (20, 59), (4, 62), (-3, 64), (6, 68)])  # lines 6-11
add_polygon(sketch4, [(-32, 61), (-22, 60), (-28, 56), (-34, 51), (-41, 47), (-47, 43), (-44, 53), (-38, 57)])  # lines 12-19
add_polygon(sketch4, [(-67, 13), (-65, 20), (-58, 27), (-59, 20), (-62, 4), (-64, -3), (-68, 6)])  # lines 20-26
add_polygon(sketch4, [(-53, -44), (-57, -38), (-61, -32), (-60, -22), (-56, -28), (-47, -41), (-43, -47)])  # lines 27-33
add_polygon(sketch4, [(3, -64), (-6, -68), (-13, -67), (-20, -65), (-27, -58), (-20, -59), (-4, -62)])  # lines 34-40
add_polygon(sketch4, [(47, -43), (44, -53), (38, -57), (32, -61), (22, -60), (28, -56), (41, -47)])  # lines 41-47
add_polygon(sketch4, [(64, 3), (68, -6), (65, -20), (58, -27), (59, -20), (62, -4)])  # lines 48-53
sketch4.addConstraint([
    Sketcher.Constraint("Symmetric", 5, 2, 28, 2, -1, 1),
    Sketcher.Constraint("Symmetric", 0, 2, 29, 2, -1, 1),
    Sketcher.Constraint("Symmetric", 1, 2, 30, 2, -1, 1),
    Sketcher.Constraint("Symmetric", 2, 2, 31, 2, -1, 1),
    Sketcher.Constraint("Symmetric", 3, 2, 32, 2, -1, 1),
    Sketcher.Constraint("Symmetric", 4, 2, 33, 2, -1, 1),
    Sketcher.Constraint("Symmetric", 10, 2, 34, 2, -1, 1),
    Sketcher.Constraint("Symmetric", 11, 2, 36, 2, -1, 1),
    Sketcher.Constraint("Symmetric", 6, 2, 37, 2, -1, 1),
    Sketcher.Constraint("Symmetric", 7, 2, 38, 2, -1, 1),
    Sketcher.Constraint("Symmetric", 8, 2, 39, 2, -1, 1),
    Sketcher.Constraint("Symmetric", 9, 2, 40, 2, -1, 1),
    Sketcher.Constraint("Symmetric", 17, 2, 41, 2, -1, 1),
    Sketcher.Constraint("Symmetric", 18, 2, 42, 2, -1, 1),
    Sketcher.Constraint("Symmetric", 19, 2, 43, 2, -1, 1),
    Sketcher.Constraint("Symmetric", 12, 2, 44, 2, -1, 1),
    Sketcher.Constraint("Symmetric", 13, 2, 45, 2, -1, 1),
    Sketcher.Constraint("Symmetric", 15, 2, 46, 2, -1, 1),
    Sketcher.Constraint("Symmetric", 16, 2, 47, 2, -1, 1),
    Sketcher.Constraint("Symmetric", 25, 2, 48, 2, -1, 1),
    Sketcher.Constraint("Symmetric", 20, 2, 49, 2, -1, 1),
    Sketcher.Constraint("Symmetric", 21, 2, 50, 2, -1, 1),
    Sketcher.Constraint("Symmetric", 22, 2, 51, 2, -1, 1),
    Sketcher.Constraint("Symmetric", 23, 2, 52, 2, -1, 1),
    Sketcher.Constraint("Symmetric", 24, 2, 53, 2, -1, 1),
    Sketcher.Constraint("Parallel", 1, 2),
    Sketcher.Constraint("Parallel", 2, 3),
    Sketcher.Constraint("Parallel", 3, 5),
    Sketcher.Constraint("Parallel", 7, 8),
    Sketcher.Constraint("Parallel", 8, 9),
    Sketcher.Constraint("Parallel", 9, 11),
    Sketcher.Constraint("Perpendicular", 0, 12),
    Sketcher.Constraint("Perpendicular", 5, 13),
    Sketcher.Constraint("Parallel", 13, 14),
    Sketcher.Constraint("Parallel", 14, 15),
    Sketcher.Constraint("Parallel", 15, 16),
    Sketcher.Constraint("Perpendicular", 4, 17),
    Sketcher.Constraint("Parallel", 16, 18),
    Sketcher.Constraint("Parallel", 18, 19),
    Sketcher.Constraint("Perpendicular", 11, 20),
    Sketcher.Constraint("Perpendicular", 6, 21),
    Sketcher.Constraint("Parallel", 20, 22),
    Sketcher.Constraint("Parallel", 22, 23),
    Sketcher.Constraint("Parallel", 23, 24),
    Sketcher.Constraint("Perpendicular", 10, 25),
    Sketcher.Constraint("Parallel", 24, 26),
    Sketcher.Constraint("Perpendicular", 19, 27),
    Sketcher.Constraint("Perpendicular", 26, 35),
    Sketcher.Constraint("Equal", 1, 3),
    Sketcher.Constraint("Equal", 0, 4),
    Sketcher.Constraint("Equal", 4, 6),
    Sketcher.Constraint("Equal", 3, 7),
    Sketcher.Constraint("Equal", 2, 8),
    Sketcher.Constraint("Equal", 7, 9),
    Sketcher.Constraint("Equal", 6, 10),
    Sketcher.Constraint("Equal", 5, 11),
    Sketcher.Constraint("Equal", 10, 12),
    Sketcher.Constraint("Equal", 9, 13),
    Sketcher.Constraint("Equal", 14, 15),
    Sketcher.Constraint("Equal", 13, 16),
    Sketcher.Constraint("Equal", 16, 18),
    Sketcher.Constraint("Equal", 18, 19),
    Sketcher.Constraint("Equal", 19, 20),
    Sketcher.Constraint("Equal", 17, 21),
    Sketcher.Constraint("Equal", 20, 22),
    Sketcher.Constraint("Equal", 8, 23),
    Sketcher.Constraint("Equal", 22, 24),
    Sketcher.Constraint("Equal", 24, 26),
    Sketcher.Constraint("Equal", 26, 27),
    Sketcher.Constraint("Equal", 32, 35),
    Sketcher.Constraint("Angle", 1, Q("123.75 deg")),
    Sketcher.Constraint("Angle", 7, Q("168.75 deg")),
    Sketcher.Constraint("DistanceY", 14, 2, 10, 2, Q("16.749999 mm")),
    Sketcher.Constraint("DistanceY", 2, 2, 7, 2, Q("18.125 mm")),
    Sketcher.Constraint("DistanceX", 22, 2, 15, 2, Q("18.125 mm")),
    Sketcher.Constraint("DistanceX", -1, 1, 4, 2, Q("52.7586 mm")),
    Sketcher.Constraint("DistanceY", -1, 1, 17, 2, Q("52.7586 mm")),
    Sketcher.Constraint("DistanceY", 5, 2, 2, 2, Q("9.0625 mm")),
    Sketcher.Constraint("DistanceX", 9, 2, 10, 2, Q("9.0625 mm")),
    Sketcher.Constraint("DistanceY", 7, 2, 10, 2, Q("9.0625 mm")),
    Sketcher.Constraint("DistanceX", 12, 2, 8, 2, Q("26.117101 mm")),
    Sketcher.Constraint("DistanceY", 27, 2, 24, 2, Q("35.179601 mm")),
    Sketcher.Constraint("DistanceX", -1, 1, 6, 2, Q("26.863781 mm")),
])
pocket3 = body.newObject("PartDesign::Pocket", "Pocket002")
pocket3.Profile = sketch4
pocket3.Type = "ThroughAll"
pocket3.Midplane = True

doc.recompute()
